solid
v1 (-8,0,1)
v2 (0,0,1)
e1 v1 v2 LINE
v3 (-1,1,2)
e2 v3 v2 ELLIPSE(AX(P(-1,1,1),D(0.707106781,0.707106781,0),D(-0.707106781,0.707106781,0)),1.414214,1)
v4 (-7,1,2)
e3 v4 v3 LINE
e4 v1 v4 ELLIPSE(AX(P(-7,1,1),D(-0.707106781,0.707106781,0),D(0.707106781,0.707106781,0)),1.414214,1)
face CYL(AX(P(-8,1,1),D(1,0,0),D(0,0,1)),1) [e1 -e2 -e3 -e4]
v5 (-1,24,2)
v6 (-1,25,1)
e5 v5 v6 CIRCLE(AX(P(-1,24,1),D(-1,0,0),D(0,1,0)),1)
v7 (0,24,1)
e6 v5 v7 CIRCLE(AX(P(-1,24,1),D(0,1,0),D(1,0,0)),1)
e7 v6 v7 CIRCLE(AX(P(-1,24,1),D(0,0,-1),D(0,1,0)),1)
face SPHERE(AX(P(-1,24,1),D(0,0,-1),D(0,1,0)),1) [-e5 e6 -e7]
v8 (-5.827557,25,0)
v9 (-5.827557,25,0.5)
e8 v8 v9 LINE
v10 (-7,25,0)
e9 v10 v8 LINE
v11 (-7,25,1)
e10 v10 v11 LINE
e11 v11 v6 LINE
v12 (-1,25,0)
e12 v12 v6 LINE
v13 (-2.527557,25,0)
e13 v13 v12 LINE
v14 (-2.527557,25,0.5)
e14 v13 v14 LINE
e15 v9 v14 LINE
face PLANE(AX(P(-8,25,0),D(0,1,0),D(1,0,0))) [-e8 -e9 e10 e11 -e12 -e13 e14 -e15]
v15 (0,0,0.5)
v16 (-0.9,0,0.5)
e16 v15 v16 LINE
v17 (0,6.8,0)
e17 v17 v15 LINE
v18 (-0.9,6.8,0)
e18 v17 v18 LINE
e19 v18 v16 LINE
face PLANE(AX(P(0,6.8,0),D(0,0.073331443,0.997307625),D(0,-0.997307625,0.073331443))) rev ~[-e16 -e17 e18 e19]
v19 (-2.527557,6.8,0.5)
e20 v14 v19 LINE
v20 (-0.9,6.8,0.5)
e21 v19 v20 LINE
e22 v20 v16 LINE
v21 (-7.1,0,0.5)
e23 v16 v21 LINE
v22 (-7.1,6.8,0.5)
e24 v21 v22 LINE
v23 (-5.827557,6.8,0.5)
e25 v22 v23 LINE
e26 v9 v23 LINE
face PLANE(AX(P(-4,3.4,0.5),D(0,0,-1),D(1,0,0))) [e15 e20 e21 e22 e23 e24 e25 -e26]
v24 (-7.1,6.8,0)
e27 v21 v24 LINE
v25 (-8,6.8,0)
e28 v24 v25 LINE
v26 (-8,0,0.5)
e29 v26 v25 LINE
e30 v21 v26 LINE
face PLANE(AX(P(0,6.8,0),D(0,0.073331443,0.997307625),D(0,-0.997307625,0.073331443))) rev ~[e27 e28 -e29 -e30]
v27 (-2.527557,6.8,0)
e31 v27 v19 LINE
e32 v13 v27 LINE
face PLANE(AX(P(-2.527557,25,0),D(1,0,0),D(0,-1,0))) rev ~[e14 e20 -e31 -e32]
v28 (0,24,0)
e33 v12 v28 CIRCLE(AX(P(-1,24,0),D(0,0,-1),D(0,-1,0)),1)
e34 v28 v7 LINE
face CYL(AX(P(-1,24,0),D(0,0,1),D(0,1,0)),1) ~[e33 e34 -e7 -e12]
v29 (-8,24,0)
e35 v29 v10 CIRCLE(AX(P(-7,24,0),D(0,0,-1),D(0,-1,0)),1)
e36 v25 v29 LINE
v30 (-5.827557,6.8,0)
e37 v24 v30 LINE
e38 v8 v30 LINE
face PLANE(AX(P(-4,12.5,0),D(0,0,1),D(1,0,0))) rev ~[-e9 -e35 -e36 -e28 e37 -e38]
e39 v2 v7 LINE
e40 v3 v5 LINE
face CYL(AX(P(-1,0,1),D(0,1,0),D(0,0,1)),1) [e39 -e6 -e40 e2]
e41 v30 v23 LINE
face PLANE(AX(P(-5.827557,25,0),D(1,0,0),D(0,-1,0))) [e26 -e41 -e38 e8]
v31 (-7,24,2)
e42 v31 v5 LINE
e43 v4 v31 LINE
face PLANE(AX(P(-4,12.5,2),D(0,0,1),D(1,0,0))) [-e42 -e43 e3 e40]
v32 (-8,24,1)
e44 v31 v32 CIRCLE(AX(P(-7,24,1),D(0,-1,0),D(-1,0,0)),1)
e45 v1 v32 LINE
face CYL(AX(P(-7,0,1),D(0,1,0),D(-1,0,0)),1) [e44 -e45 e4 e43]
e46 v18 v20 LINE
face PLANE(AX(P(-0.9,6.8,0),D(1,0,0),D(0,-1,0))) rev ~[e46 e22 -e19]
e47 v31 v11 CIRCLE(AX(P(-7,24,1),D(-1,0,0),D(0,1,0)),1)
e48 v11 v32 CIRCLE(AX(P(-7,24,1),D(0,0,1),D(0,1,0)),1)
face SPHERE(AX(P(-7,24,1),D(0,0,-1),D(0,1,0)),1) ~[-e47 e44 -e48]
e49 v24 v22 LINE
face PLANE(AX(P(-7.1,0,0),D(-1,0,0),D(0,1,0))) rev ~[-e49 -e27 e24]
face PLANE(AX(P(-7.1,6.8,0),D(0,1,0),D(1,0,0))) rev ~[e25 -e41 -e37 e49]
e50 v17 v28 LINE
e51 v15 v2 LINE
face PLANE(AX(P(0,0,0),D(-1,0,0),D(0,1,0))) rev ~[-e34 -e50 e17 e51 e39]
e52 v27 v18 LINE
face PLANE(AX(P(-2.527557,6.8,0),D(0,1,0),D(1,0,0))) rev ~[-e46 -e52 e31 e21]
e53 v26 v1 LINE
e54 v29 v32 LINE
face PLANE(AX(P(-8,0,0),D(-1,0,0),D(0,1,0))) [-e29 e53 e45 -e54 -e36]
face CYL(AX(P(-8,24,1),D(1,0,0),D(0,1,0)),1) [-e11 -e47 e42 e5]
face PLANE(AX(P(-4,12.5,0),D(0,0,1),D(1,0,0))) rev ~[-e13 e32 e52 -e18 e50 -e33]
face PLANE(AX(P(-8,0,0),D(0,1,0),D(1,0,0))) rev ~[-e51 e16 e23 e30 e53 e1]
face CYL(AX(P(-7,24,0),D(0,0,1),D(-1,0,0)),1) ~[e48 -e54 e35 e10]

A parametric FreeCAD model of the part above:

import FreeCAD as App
import Part
import Sketcher
from FreeCAD import Vector
Q = App.Units.Quantity


def edges_at(feature, points):
    """Names of the edges that pass closest to the given points."""
    edges = feature.Shape.Edges
    near = lambda p: min(range(len(edges)), key=lambda i: edges[i].distToShape(Part.Vertex(*p))[0])
    return sorted({f"Edge{near(p) + 1}" for p in points})

doc = App.newDocument("Part")
params = doc.addObject("Spreadsheet::Sheet", "Params")
for row, (alias, value) in enumerate([
    ("sketch1_width", "8 mm"),
    ("sketch1_height", "25 mm"),
    ("pad1_length", "2 mm"),
    ("sketch2_width", "3.3 mm"),
    ("sketch2_width2", "6.2 mm"),
    ("sketch2_height", "18.2 mm"),
    ("sketch2_height2", "6.8 mm"),
    ("pocket1_length", "0.5 mm"),
    ("sketch3_width", "6.8 mm"),
    ("sketch3_height", "0.5 mm"),
    ("fillet_radius", "1 mm"),
], start=1):
    params.set(f"A{row}", alias)
    params.set(f"B{row}", "=" + value)
    params.setAlias(f"B{row}", alias)

body = doc.addObject("PartDesign::Body", "Body")

# Sketch on XY plane
sketch1 = body.newObject("Sketcher::SketchObject", "Sketch")
sketch1.AttachmentSupport = (doc.getObject("XY_Plane"), [""])
sketch1.MapMode = "FlatFace"
sketch1.addGeometry(Part.LineSegment(Vector(-8, 25, 0), Vector(-8, 0, 0)), False)
sketch1.addGeometry(Part.LineSegment(Vector(-8, 0, 0), Vector(0, 0, 0)), False)
sketch1.addGeometry(Part.LineSegment(Vector(0, 0, 0), Vector(0, 25, 0)), False)
sketch1.addGeometry(Part.LineSegment(Vector(0, 25, 0), Vector(-8, 25, 0)), False)
sketch1.addConstraint(Sketcher.Constraint("Coincident", 0, 2, 1, 1))
sketch1.addConstraint(Sketcher.Constraint("Coincident", 1, 2, 2, 1))
sketch1.addConstraint(Sketcher.Constraint("Coincident", 2, 2, 3, 1))
sketch1.addConstraint(Sketcher.Constraint("Coincident", 3, 2, 0, 1))
sketch1.addConstraint(Sketcher.Constraint("Vertical", 0))
sketch1.addConstraint(Sketcher.Constraint("Horizontal", 1))
sketch1.addConstraint(Sketcher.Constraint("Vertical", 2))
sketch1.addConstraint(Sketcher.Constraint("Horizontal", 3))
sketch1.addConstraint(Sketcher.Constraint("Coincident", 1, 2, -1, 1))
sketch1.addConstraint(Sketcher.Constraint("DistanceX", 1, 1, 1, 2, Q("8 mm")))
sketch1.addConstraint(Sketcher.Constraint("DistanceY", 0, 2, 0, 1, Q("25 mm")))
sketch1.setExpression("Constraints[9]", "Params.sketch1_width")
sketch1.setExpression("Constraints[10]", "Params.sketch1_height")
pad1 = body.newObject("PartDesign::Pad", "Pad")
pad1.Profile = sketch1
pad1.setExpression("Length", "Params.pad1_length")

# Sketch on XY plane
sketch2 = body.newObject("Sketcher::SketchObject", "Sketch001")
sketch2.AttachmentSupport = (doc.getObject("XY_Plane"), [""])
sketch2.MapMode = "FlatFace"
sketch2.addGeometry(Part.LineSegment(Vector(-7.1, 6.8, 0), Vector(-5.827557, 6.8, 0)), False)
sketch2.addGeometry(Part.LineSegment(Vector(-5.827557, 6.8, 0), Vector(-5.827557, 25, 0)), False)
sketch2.addGeometry(Part.LineSegment(Vector(-5.827557, 25, 0), Vector(-2.527557, 25, 0)), False)
sketch2.addGeometry(Part.LineSegment(Vector(-2.527557, 25, 0), Vector(-2.527557, 6.8, 0)), False)
sketch2.addGeometry(Part.LineSegment(Vector(-2.527557, 6.8, 0), Vector(-0.9, 6.8, 0)), False)
sketch2.addGeometry(Part.LineSegment(Vector(-0.9, 6.8, 0), Vector(-0.9, 0, 0)), False)
sketch2.addGeometry(Part.LineSegment(Vector(-0.9, 0, 0), Vector(-7.1, 0, 0)), False)
sketch2.addGeometry(Part.LineSegment(Vector(-7.1, 0, 0), Vector(-7.1, 6.8, 0)), False)
sketch2.addConstraint(Sketcher.Constraint("Coincident", 0, 2, 1, 1))
sketch2.addConstraint(Sketcher.Constraint("Coincident", 1, 2, 2, 1))
sketch2.addConstraint(Sketcher.Constraint("Coincident", 2, 2, 3, 1))
sketch2.addConstraint(Sketcher.Constraint("Coincident", 3, 2, 4, 1))
sketch2.addConstraint(Sketcher.Constraint("Coincident", 4, 2, 5, 1))
sketch2.addConstraint(Sketcher.Constraint("Coincident", 5, 2, 6, 1))
sketch2.addConstraint(Sketcher.Constraint("Coincident", 6, 2, 7, 1))
sketch2.addConstraint(Sketcher.Constraint("Coincident", 7, 2, 0, 1))
sketch2.addConstraint(Sketcher.Constraint("Horizontal", 0))
sketch2.addConstraint(Sketcher.Constraint("Vertical", 1))
sketch2.addConstraint(Sketcher.Constraint("Horizontal", 2))
sketch2.addConstraint(Sketcher.Constraint("Vertical", 3))
sketch2.addConstraint(Sketcher.Constraint("Horizontal", 4))
sketch2.addConstraint(Sketcher.Constraint("Vertical", 5))
sketch2.addConstraint(Sketcher.Constraint("Horizontal", 6))
sketch2.addConstraint(Sketcher.Constraint("Vertical", 7))
sketch2.addConstraint(Sketcher.Constraint("PointOnObject", 5, 2, -1))
sketch2.addConstraint(Sketcher.Constraint("Horizontal", 0, 2, 3, 2))
sketch2.addConstraint(Sketcher.Constraint("DistanceX", 2, 1, 2, 2, Q("3.3 mm")))
sketch2.addConstraint(Sketcher.Constraint("DistanceX", 6, 2, 6, 1, Q("6.2 mm")))
sketch2.addConstraint(Sketcher.Constraint("DistanceY", 1, 1, 1, 2, Q("18.2 mm")))
sketch2.addConstraint(Sketcher.Constraint("DistanceY", 5, 2, 5, 1, Q("6.8 mm")))
sketch2.addConstraint(Sketcher.Constraint("DistanceX", 4, 2, -1, 1, Q("0.9 mm")))
sketch2.addConstraint(Sketcher.Constraint("DistanceX", 0, 1, 0, 2, Q("1.272443 mm")))
sketch2.setExpression("Constraints[18]", "Params.sketch2_width")
sketch2.setExpression("Constraints[19]", "Params.sketch2_width2")
sketch2.setExpression("Constraints[20]", "Params.sketch2_height")
sketch2.setExpression("Constraints[21]", "Params.sketch2_height2")
pocket1 = body.newObject("PartDesign::Pocket", "Pocket")
pocket1.Profile = sketch2
pocket1.setExpression("Length", "Params.pocket1_length")
pocket1.Reversed = True

# Sketch on YZ plane
sketch3 = body.newObject("Sketcher::SketchObject", "Sketch002")
sketch3.AttachmentSupport = (doc.getObject("YZ_Plane"), [""])
sketch3.MapMode = "FlatFace"
sketch3.addGeometry(Part.LineSegment(Vector(6.8, 0, 0), Vector(0, 0.5, 0)), False)
sketch3.addGeometry(Part.LineSegment(Vector(0, 0.5, 0), Vector(0, 0, 0)), False)
sketch3.addGeometry(Part.LineSegment(Vector(0, 0, 0), Vector(6.8, 0, 0)), False)
sketch3.addConstraint(Sketcher.Constraint("Coincident", 0, 2, 1, 1))
sketch3.addConstraint(Sketcher.Constraint("Coincident", 1, 2, 2, 1))
sketch3.addConstraint(Sketcher.Constraint("Coincident", 2, 2, 0, 1))
sketch3.addConstraint(Sketcher.Constraint("Vertical", 1))
sketch3.addConstraint(Sketcher.Constraint("Horizontal", 2))
sketch3.addConstraint(Sketcher.Constraint("Coincident", 1, 2, -1, 1))
sketch3.addConstraint(Sketcher.Constraint("DistanceX", 2, 1, 2, 2, Q("6.8 mm")))
sketch3.addConstraint(Sketcher.Constraint("DistanceY", 1, 2, 1, 1, Q("0.5 mm")))
sketch3.setExpression("Constraints[6]", "Params.sketch3_width")
sketch3.setExpression("Constraints[7]", "Params.sketch3_height")
pocket2 = body.newObject("PartDesign::Pocket", "Pocket001")
pocket2.Profile = sketch3
pocket2.Type = "ThroughAll"
doc.recompute()

fillet = body.newObject("PartDesign::Fillet", "Fillet")
fillet.Base = (pocket2, edges_at(pocket2, [
    (0, 25, 1),
    (-8, 25, 1),
    (-4, 25, 2),
    (0, 12.5, 2),
    (-8, 12.5, 2),
    (-4, 0, 2),
]))
fillet.setExpression("Radius", "Params.fillet_radius")

doc.recompute()
